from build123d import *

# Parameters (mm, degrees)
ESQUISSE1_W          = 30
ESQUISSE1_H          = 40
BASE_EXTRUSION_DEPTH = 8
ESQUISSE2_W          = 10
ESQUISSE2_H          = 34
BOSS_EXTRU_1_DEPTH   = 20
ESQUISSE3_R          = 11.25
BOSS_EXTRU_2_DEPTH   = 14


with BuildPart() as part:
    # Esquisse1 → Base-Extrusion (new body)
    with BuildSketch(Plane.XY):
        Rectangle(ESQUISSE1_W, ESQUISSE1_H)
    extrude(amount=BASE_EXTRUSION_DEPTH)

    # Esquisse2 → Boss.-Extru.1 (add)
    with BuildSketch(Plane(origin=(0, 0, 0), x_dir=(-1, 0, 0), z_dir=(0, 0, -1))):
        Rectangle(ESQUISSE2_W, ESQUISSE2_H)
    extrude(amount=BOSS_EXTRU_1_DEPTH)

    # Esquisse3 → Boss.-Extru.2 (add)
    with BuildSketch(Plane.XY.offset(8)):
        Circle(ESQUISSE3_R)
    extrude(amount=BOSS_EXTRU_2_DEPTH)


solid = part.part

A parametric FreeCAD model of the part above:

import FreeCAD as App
import Part
import Sketcher


def add_polygon(sketch, points):
    """Adds a closed chain of lines whose ends are joined by coincident constraints."""
    first, n = sketch.GeometryCount, len(points)
    for a, b in zip(points, points[1:] + points[:1]):
        sketch.addGeometry(Part.LineSegment(App.Vector(*a, 0), App.Vector(*b, 0)), False)
    for i in range(n):
        sketch.addConstraint(Sketcher.Constraint("Coincident", first + i, 2, first + (i + 1) % n, 1))

doc = App.newDocument("Part")
body = doc.addObject("PartDesign::Body", "Body")

# Sketch on XY plane
sketch1 = body.newObject("Sketcher::SketchObject", "Sketch")
sketch1.AttachmentSupport = (doc.getObject("XY_Plane"), [""])
sketch1.MapMode = "FlatFace"
add_polygon(sketch1, [(-15, 20), (-15, -20), (15, -20), (15, 20)])  # lines 0-3
sketch1.addConstraint([
    Sketcher.Constraint("Vertical", 0),
    Sketcher.Constraint("Horizontal", 1),
    Sketcher.Constraint("Vertical", 2),
    Sketcher.Constraint("Horizontal", 3),
    Sketcher.Constraint("Symmetric", 0, 2, 2, 2, -1, 1),
    Sketcher.Constraint("DistanceX", 1, 1, 1, 2, 30.0),
    Sketcher.Constraint("DistanceY", 0, 2, 0, 1, 40.0),
])
pad1 = body.newObject("PartDesign::Pad", "Pad")
pad1.Profile = sketch1
pad1.Length = 8

# Sketch on XY plane
sketch2 = body.newObject("Sketcher::SketchObject", "Sketch001")
sketch2.AttachmentSupport = (doc.getObject("XY_Plane"), [""])
sketch2.MapMode = "FlatFace"
add_polygon(sketch2, [(5, 17), (5, -17), (-5, -17), (-5, 17)])  # lines 0-3
sketch2.addConstraint([
    Sketcher.Constraint("Vertical", 0),
    Sketcher.Constraint("Horizontal", 1),
    Sketcher.Constraint("Vertical", 2),
    Sketcher.Constraint("Horizontal", 3),
    Sketcher.Constraint("Symmetric", 0, 2, 2, 2, -1, 1),
    Sketcher.Constraint("DistanceX", 1, 2, 1, 1, 10.0),
    Sketcher.Constraint("DistanceY", 0, 2, 0, 1, 34.0),
])
pad2 = body.newObject("PartDesign::Pad", "Pad001")
pad2.Profile = sketch2
pad2.Length = 20
pad2.Reversed = True

# Sketch on XY plane
sketch3 = body.newObject("Sketcher::SketchObject", "Sketch002")
sketch3.AttachmentSupport = (doc.getObject("XY_Plane"), [""])
sketch3.MapMode = "FlatFace"
sketch3.AttachmentOffset = App.Placement(App.Vector(0, 0, 8), App.Rotation())
sketch3.addGeometry(Part.Circle(App.Vector(0, 0, 0), App.Vector(0, 0, 1), 11), False)
sketch3.addConstraint([
    Sketcher.Constraint("Coincident", 0, 3, -1, 1),
    Sketcher.Constraint("Diameter", 0, 22.5),
])
pad3 = body.newObject("PartDesign::Pad", "Pad002")
pad3.Profile = sketch3
pad3.Length = 14

doc.recompute()
